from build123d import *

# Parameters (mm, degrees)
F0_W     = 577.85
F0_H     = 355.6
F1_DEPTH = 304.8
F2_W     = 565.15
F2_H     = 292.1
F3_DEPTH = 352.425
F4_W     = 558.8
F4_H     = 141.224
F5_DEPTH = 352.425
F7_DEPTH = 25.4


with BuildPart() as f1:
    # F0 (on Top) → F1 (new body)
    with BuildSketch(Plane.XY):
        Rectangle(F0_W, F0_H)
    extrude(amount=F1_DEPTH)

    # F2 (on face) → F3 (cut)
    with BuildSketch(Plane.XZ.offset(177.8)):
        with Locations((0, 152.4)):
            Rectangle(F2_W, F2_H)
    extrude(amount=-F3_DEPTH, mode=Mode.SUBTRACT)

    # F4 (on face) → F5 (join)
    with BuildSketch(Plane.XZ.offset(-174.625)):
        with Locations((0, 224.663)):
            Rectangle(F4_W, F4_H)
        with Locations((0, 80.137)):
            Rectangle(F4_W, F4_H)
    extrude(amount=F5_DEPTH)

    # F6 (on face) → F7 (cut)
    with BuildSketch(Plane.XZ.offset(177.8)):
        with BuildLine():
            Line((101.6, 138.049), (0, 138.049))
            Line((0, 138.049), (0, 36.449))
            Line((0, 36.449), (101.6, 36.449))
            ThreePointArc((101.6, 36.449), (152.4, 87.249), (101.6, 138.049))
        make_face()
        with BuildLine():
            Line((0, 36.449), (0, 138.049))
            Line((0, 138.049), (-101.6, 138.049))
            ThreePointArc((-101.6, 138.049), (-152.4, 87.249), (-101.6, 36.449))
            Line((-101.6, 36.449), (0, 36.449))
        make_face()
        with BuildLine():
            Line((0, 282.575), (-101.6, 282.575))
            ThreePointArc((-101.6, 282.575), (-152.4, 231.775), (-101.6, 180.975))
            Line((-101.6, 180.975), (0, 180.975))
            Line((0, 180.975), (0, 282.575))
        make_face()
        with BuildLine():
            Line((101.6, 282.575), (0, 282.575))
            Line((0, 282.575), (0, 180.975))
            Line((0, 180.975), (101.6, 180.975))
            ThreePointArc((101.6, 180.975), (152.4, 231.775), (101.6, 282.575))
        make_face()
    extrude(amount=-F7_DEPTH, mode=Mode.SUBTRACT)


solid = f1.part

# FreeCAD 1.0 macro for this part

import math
import FreeCAD as App
import Part
import Sketcher

V = App.Vector
Q = App.Units.Quantity

doc = App.newDocument("Part")
body = doc.addObject("PartDesign::Body", "Body")

# Sketch on XY plane
sketch1 = body.newObject("Sketcher::SketchObject", "Sketch")
sketch1.AttachmentSupport = (doc.getObject("XY_Plane"), [""])
sketch1.MapMode = "FlatFace"
sketch1.addGeometry([
    Part.LineSegment(V(-289, 178, 0), V(-289, -178, 0)),
    Part.LineSegment(V(-289, -178, 0), V(289, -178, 0)),
    Part.LineSegment(V(289, -178, 0), V(289, 178, 0)),
    Part.LineSegment(V(289, 178, 0), V(-289, 178, 0)),
], False)
sketch1.addConstraint([
    Sketcher.Constraint("Coincident", 0, 2, 1, 1),
    Sketcher.Constraint("Coincident", 1, 2, 2, 1),
    Sketcher.Constraint("Coincident", 2, 2, 3, 1),
    Sketcher.Constraint("Coincident", 3, 2, 0, 1),
    Sketcher.Constraint("Vertical", 0),
    Sketcher.Constraint("Horizontal", 1),
    Sketcher.Constraint("Vertical", 2),
    Sketcher.Constraint("Horizontal", 3),
    Sketcher.Constraint("Symmetric", 0, 2, 2, 2, -1, 1),
    Sketcher.Constraint("DistanceY", 0, 2, 0, 1, Q("14 in")),
    Sketcher.Constraint("DistanceX", 1, 1, 1, 2, Q("22.75 in")),
])
pad1 = body.newObject("PartDesign::Pad", "Pad")
pad1.Profile = sketch1
pad1.Length = Q("12 in")

# Sketch on XZ plane
sketch2 = body.newObject("Sketcher::SketchObject", "Sketch001")
sketch2.AttachmentSupport = (doc.getObject("XZ_Plane"), [""])
sketch2.MapMode = "FlatFace"
sketch2.AttachmentOffset = App.Placement(V(0, 0, 7 * 25.4), App.Rotation())
sketch2.addGeometry([
    Part.LineSegment(V(-283, 298, 0), V(-283, 6, 0)),
    Part.LineSegment(V(-283, 6, 0), V(283, 6, 0)),
    Part.LineSegment(V(283, 6, 0), V(283, 298, 0)),
    Part.LineSegment(V(283, 298, 0), V(-283, 298, 0)),
], False)
sketch2.addConstraint([
    Sketcher.Constraint("Coincident", 0, 2, 1, 1),
    Sketcher.Constraint("Coincident", 1, 2, 2, 1),
    Sketcher.Constraint("Coincident", 2, 2, 3, 1),
    Sketcher.Constraint("Coincident", 3, 2, 0, 1),
    Sketcher.Constraint("Vertical", 0),
    Sketcher.Constraint("Horizontal", 1),
    Sketcher.Constraint("Vertical", 2),
    Sketcher.Constraint("Horizontal", 3),
    Sketcher.Constraint("DistanceY", 0, 2, 0, 1, Q("11.5 in")),
    Sketcher.Constraint("DistanceX", 1, 1, 1, 2, Q("22.25 in")),
    Sketcher.Constraint("DistanceY", -1, 1, 0, 2, Q("0.25 in")),
    Sketcher.Constraint("DistanceX", 0, 2, -1, 1, Q("11.125 in")),
])
pocket1 = body.newObject("PartDesign::Pocket", "Pocket")
pocket1.Profile = sketch2
pocket1.Length = Q("13.875 in")

# Sketch on XZ plane
sketch3 = body.newObject("Sketcher::SketchObject", "Sketch002")
sketch3.AttachmentSupport = (doc.getObject("XZ_Plane"), [""])
sketch3.MapMode = "FlatFace"
sketch3.AttachmentOffset = App.Placement(V(0, 0, -6.875 * 25.4), App.Rotation())
sketch3.addGeometry([
    Part.LineSegment(V(-279, 295, 0), V(-279, 154, 0)),  # 0
    Part.LineSegment(V(-279, 154, 0), V(279, 154, 0)),  # 1
    Part.LineSegment(V(279, 154, 0), V(279, 295, 0)),  # 2
    Part.LineSegment(V(279, 295, 0), V(-279, 295, 0)),  # 3
    Part.LineSegment(V(-279, 151, 0), V(-279, 10, 0)),  # 4
    Part.LineSegment(V(-279, 10, 0), V(279, 10, 0)),  # 5
    Part.LineSegment(V(279, 10, 0), V(279, 151, 0)),  # 6
    Part.LineSegment(V(279, 151, 0), V(-279, 151, 0)),  # 7
], False)
sketch3.addConstraint([
    Sketcher.Constraint("Coincident", 0, 2, 1, 1),
    Sketcher.Constraint("Coincident", 1, 2, 2, 1),
    Sketcher.Constraint("Coincident", 2, 2, 3, 1),
    Sketcher.Constraint("Coincident", 3, 2, 0, 1),
    Sketcher.Constraint("Coincident", 4, 2, 5, 1),
    Sketcher.Constraint("Coincident", 5, 2, 6, 1),
    Sketcher.Constraint("Coincident", 6, 2, 7, 1),
    Sketcher.Constraint("Coincident", 7, 2, 4, 1),
    Sketcher.Constraint("Vertical", 0),
    Sketcher.Constraint("Horizontal", 1),
    Sketcher.Constraint("Vertical", 2),
    Sketcher.Constraint("Horizontal", 3),
    Sketcher.Constraint("Vertical", 4),
    Sketcher.Constraint("Horizontal", 5),
    Sketcher.Constraint("Vertical", 6),
    Sketcher.Constraint("Horizontal", 7),
    Sketcher.Constraint("Vertical", 3, 2, 4, 2),
    Sketcher.Constraint("Vertical", 2, 2, 5, 2),
    Sketcher.Constraint("Equal", 2, 4),
    Sketcher.Constraint("DistanceX", 1, 1, 1, 2, Q("22 in")),
    Sketcher.Constraint("DistanceX", 0, 2, -1, 1, Q("11 in")),
    Sketcher.Constraint("DistanceY", 0, 2, 0, 1, Q("5.56 in")),
    Sketcher.Constraint("DistanceY", 4, 2, 0, 2, Q("5.69 in")),
    Sketcher.Constraint("DistanceY", -1, 1, 0, 2, Q("6.065 in")),
])
pad2 = body.newObject("PartDesign::Pad", "Pad001")
pad2.Profile = sketch3
pad2.Length = Q("13.875 in")

# Sketch on XZ plane
sketch4 = body.newObject("Sketcher::SketchObject", "Sketch003")
sketch4.AttachmentSupport = (doc.getObject("XZ_Plane"), [""])
sketch4.MapMode = "FlatFace"
sketch4.AttachmentOffset = App.Placement(V(0, 0, 7 * 25.4), App.Rotation())
sketch4.addGeometry([
    Part.LineSegment(V(102, 138, 0), V(-102, 138, 0)),  # 0
    Part.ArcOfCircle(Part.Circle(V(-102, 87, 0), V(0, 0, 1), 51), math.radians(90), math.radians(270)),  # 1
    Part.LineSegment(V(-102, 36, 0), V(102, 36, 0)),  # 2
    Part.ArcOfCircle(Part.Circle(V(102, 87, 0), V(0, 0, 1), 51), math.radians(-90), math.radians(90)),  # 3
    Part.ArcOfCircle(Part.Circle(V(-102, 232, 0), V(0, 0, 1), 51), math.radians(90), math.radians(270)),  # 4
    Part.LineSegment(V(-102, 181, 0), V(102, 181, 0)),  # 5
    Part.ArcOfCircle(Part.Circle(V(102, 232, 0), V(0, 0, 1), 51), math.radians(-90), math.radians(90)),  # 6
    Part.LineSegment(V(102, 283, 0), V(-102, 283, 0)),  # 7
], False)
sketch4.addConstraint([
    Sketcher.Constraint("Tangent", 0, 2, 1, 1),
    Sketcher.Constraint("Tangent", 1, 2, 2, 1),
    Sketcher.Constraint("Tangent", 2, 2, 3, 1),
    Sketcher.Constraint("Tangent", 3, 2, 0, 1),
    Sketcher.Constraint("Tangent", 4, 2, 5, 1),
    Sketcher.Constraint("Tangent", 5, 2, 6, 1),
    Sketcher.Constraint("Tangent", 6, 2, 7, 1),
    Sketcher.Constraint("Tangent", 7, 2, 4, 1),
    Sketcher.Constraint("Horizontal", 0),
    Sketcher.Constraint("Horizontal", 2),
    Sketcher.Constraint("Horizontal", 5),
    Sketcher.Constraint("Horizontal", 7),
    Sketcher.Constraint("Equal", 3, 4),
    Sketcher.Constraint("Vertical", 1, 3, 4, 3),
    Sketcher.Constraint("Vertical", 3, 3, 6, 3),
    Sketcher.Constraint("Radius", 1, Q("2 in")),
    Sketcher.Constraint("DistanceX", 0, 2, 0, 1, Q("8 in")),
    Sketcher.Constraint("DistanceX", 1, 3, -1, 1, Q("4 in")),
    Sketcher.Constraint("DistanceY", 1, 3, 4, 3, Q("5.69 in")),
    Sketcher.Constraint("DistanceY", -1, 1, 1, 3, Q("3.435 in")),
])
pocket2 = body.newObject("PartDesign::Pocket", "Pocket001")
pocket2.Profile = sketch4
pocket2.Length = Q("1 in")

doc.recompute()
